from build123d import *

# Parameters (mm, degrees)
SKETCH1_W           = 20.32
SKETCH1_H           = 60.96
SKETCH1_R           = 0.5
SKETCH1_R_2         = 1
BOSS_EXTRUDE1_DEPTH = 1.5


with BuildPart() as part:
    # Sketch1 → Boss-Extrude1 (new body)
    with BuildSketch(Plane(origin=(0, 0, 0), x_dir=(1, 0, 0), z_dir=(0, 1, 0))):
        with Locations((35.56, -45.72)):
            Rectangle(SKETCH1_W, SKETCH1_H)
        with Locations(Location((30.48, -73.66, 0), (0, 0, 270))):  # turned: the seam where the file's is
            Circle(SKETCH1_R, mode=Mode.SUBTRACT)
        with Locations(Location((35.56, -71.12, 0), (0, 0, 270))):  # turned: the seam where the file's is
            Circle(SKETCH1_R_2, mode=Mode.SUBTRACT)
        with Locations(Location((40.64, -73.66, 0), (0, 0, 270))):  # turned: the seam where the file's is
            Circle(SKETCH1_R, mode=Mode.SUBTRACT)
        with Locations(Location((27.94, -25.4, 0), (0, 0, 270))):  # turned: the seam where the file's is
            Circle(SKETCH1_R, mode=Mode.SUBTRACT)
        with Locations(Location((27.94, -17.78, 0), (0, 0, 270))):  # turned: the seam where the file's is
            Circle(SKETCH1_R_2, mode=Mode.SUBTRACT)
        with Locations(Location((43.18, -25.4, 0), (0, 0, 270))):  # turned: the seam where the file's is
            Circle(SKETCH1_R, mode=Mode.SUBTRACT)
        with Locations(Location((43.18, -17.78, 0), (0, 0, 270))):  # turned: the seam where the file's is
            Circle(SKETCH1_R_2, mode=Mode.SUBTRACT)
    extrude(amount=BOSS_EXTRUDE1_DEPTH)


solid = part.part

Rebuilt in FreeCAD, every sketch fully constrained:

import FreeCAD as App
import Part
import Sketcher
Q = App.Units.Quantity


def add_polygon(sketch, points):
    """Adds a closed chain of lines whose ends are joined by coincident constraints."""
    first, n = sketch.GeometryCount, len(points)
    for a, b in zip(points, points[1:] + points[:1]):
        sketch.addGeometry(Part.LineSegment(App.Vector(*a, 0), App.Vector(*b, 0)), False)
    for i in range(n):
        sketch.addConstraint(Sketcher.Constraint("Coincident", first + i, 2, first + (i + 1) % n, 1))

doc = App.newDocument("Part")
body = doc.addObject("PartDesign::Body", "Body")

# Sketch on XZ plane
sketch1 = body.newObject("Sketcher::SketchObject", "Sketch")
sketch1.AttachmentSupport = (doc.getObject("XZ_Plane"), [""])
sketch1.MapMode = "FlatFace"
add_polygon(sketch1, [(25.4, 15.24), (25.4, 76.2), (45.72, 76.2), (45.72, 15.24)])  # lines 0-3
sketch1.addGeometry(Part.Circle(App.Vector(30.48, 73.66, 0), App.Vector(0, 0, 1), 0.5), False)  # 4
sketch1.addGeometry(Part.Circle(App.Vector(35.56, 71.12, 0), App.Vector(0, 0, 1), 1), False)  # 5
sketch1.addGeometry(Part.Circle(App.Vector(40.64, 73.66, 0), App.Vector(0, 0, 1), 0.5), False)  # 6
sketch1.addGeometry(Part.Circle(App.Vector(27.94, 25.4, 0), App.Vector(0, 0, 1), 0.5), False)  # 7
sketch1.addGeometry(Part.Circle(App.Vector(27.94, 17.78, 0), App.Vector(0, 0, 1), 1), False)  # 8
sketch1.addGeometry(Part.Circle(App.Vector(43.18, 25.4, 0), App.Vector(0, 0, 1), 0.5), False)  # 9
sketch1.addGeometry(Part.Circle(App.Vector(43.18, 17.78, 0), App.Vector(0, 0, 1), 1), False)  # 10
sketch1.addConstraint(Sketcher.Constraint("Vertical", 0))
sketch1.addConstraint(Sketcher.Constraint("Horizontal", 1))
sketch1.addConstraint(Sketcher.Constraint("Vertical", 2))
sketch1.addConstraint(Sketcher.Constraint("Horizontal", 3))
sketch1.addConstraint(Sketcher.Constraint("Equal", 4, 6))
sketch1.addConstraint(Sketcher.Constraint("Equal", 6, 7))
sketch1.addConstraint(Sketcher.Constraint("Equal", 5, 8))
sketch1.addConstraint(Sketcher.Constraint("Equal", 7, 9))
sketch1.addConstraint(Sketcher.Constraint("Equal", 8, 10))
sketch1.addConstraint(Sketcher.Constraint("Horizontal", 4, 3, 6, 3))
sketch1.addConstraint(Sketcher.Constraint("Horizontal", 7, 3, 9, 3))
sketch1.addConstraint(Sketcher.Constraint("Horizontal", 8, 3, 10, 3))
sketch1.addConstraint(Sketcher.Constraint("Vertical", 7, 3, 8, 3))
sketch1.addConstraint(Sketcher.Constraint("Vertical", 9, 3, 10, 3))
sketch1.addConstraint(Sketcher.Constraint("Diameter", 4, Q("1 mm")))
sketch1.addConstraint(Sketcher.Constraint("Diameter", 5, Q("2 mm")))
sketch1.addConstraint(Sketcher.Constraint("DistanceX", 1, 1, 1, 2, Q("20.32 mm")))
sketch1.addConstraint(Sketcher.Constraint("DistanceY", 0, 1, 0, 2, Q("60.96 mm")))
sketch1.addConstraint(Sketcher.Constraint("DistanceY", -1, 1, 7, 3, Q("25.4 mm")))
sketch1.addConstraint(Sketcher.Constraint("DistanceX", -1, 1, 0, 2, Q("25.4 mm")))
sketch1.addConstraint(Sketcher.Constraint("DistanceY", -1, 1, 0, 2, Q("76.2 mm")))
sketch1.addConstraint(Sketcher.Constraint("DistanceX", 7, 3, 6, 3, Q("12.7 mm")))
sketch1.addConstraint(Sketcher.Constraint("DistanceX", 4, 3, 9, 3, Q("12.7 mm")))
sketch1.addConstraint(Sketcher.Constraint("DistanceX", -1, 1, 4, 3, Q("30.48 mm")))
sketch1.addConstraint(Sketcher.Constraint("DistanceY", -1, 1, 4, 3, Q("73.66 mm")))
sketch1.addConstraint(Sketcher.Constraint("DistanceX", -1, 1, 5, 3, Q("35.56 mm")))
sketch1.addConstraint(Sketcher.Constraint("DistanceY", -1, 1, 5, 3, Q("71.12 mm")))
sketch1.addConstraint(Sketcher.Constraint("DistanceX", -1, 1, 6, 3, Q("40.64 mm")))
sketch1.addConstraint(Sketcher.Constraint("DistanceY", -1, 1, 8, 3, Q("17.78 mm")))
pad1 = body.newObject("PartDesign::Pad", "Pad")
pad1.Profile = sketch1
pad1.Length = 1.5
pad1.Reversed = True

doc.recompute()
